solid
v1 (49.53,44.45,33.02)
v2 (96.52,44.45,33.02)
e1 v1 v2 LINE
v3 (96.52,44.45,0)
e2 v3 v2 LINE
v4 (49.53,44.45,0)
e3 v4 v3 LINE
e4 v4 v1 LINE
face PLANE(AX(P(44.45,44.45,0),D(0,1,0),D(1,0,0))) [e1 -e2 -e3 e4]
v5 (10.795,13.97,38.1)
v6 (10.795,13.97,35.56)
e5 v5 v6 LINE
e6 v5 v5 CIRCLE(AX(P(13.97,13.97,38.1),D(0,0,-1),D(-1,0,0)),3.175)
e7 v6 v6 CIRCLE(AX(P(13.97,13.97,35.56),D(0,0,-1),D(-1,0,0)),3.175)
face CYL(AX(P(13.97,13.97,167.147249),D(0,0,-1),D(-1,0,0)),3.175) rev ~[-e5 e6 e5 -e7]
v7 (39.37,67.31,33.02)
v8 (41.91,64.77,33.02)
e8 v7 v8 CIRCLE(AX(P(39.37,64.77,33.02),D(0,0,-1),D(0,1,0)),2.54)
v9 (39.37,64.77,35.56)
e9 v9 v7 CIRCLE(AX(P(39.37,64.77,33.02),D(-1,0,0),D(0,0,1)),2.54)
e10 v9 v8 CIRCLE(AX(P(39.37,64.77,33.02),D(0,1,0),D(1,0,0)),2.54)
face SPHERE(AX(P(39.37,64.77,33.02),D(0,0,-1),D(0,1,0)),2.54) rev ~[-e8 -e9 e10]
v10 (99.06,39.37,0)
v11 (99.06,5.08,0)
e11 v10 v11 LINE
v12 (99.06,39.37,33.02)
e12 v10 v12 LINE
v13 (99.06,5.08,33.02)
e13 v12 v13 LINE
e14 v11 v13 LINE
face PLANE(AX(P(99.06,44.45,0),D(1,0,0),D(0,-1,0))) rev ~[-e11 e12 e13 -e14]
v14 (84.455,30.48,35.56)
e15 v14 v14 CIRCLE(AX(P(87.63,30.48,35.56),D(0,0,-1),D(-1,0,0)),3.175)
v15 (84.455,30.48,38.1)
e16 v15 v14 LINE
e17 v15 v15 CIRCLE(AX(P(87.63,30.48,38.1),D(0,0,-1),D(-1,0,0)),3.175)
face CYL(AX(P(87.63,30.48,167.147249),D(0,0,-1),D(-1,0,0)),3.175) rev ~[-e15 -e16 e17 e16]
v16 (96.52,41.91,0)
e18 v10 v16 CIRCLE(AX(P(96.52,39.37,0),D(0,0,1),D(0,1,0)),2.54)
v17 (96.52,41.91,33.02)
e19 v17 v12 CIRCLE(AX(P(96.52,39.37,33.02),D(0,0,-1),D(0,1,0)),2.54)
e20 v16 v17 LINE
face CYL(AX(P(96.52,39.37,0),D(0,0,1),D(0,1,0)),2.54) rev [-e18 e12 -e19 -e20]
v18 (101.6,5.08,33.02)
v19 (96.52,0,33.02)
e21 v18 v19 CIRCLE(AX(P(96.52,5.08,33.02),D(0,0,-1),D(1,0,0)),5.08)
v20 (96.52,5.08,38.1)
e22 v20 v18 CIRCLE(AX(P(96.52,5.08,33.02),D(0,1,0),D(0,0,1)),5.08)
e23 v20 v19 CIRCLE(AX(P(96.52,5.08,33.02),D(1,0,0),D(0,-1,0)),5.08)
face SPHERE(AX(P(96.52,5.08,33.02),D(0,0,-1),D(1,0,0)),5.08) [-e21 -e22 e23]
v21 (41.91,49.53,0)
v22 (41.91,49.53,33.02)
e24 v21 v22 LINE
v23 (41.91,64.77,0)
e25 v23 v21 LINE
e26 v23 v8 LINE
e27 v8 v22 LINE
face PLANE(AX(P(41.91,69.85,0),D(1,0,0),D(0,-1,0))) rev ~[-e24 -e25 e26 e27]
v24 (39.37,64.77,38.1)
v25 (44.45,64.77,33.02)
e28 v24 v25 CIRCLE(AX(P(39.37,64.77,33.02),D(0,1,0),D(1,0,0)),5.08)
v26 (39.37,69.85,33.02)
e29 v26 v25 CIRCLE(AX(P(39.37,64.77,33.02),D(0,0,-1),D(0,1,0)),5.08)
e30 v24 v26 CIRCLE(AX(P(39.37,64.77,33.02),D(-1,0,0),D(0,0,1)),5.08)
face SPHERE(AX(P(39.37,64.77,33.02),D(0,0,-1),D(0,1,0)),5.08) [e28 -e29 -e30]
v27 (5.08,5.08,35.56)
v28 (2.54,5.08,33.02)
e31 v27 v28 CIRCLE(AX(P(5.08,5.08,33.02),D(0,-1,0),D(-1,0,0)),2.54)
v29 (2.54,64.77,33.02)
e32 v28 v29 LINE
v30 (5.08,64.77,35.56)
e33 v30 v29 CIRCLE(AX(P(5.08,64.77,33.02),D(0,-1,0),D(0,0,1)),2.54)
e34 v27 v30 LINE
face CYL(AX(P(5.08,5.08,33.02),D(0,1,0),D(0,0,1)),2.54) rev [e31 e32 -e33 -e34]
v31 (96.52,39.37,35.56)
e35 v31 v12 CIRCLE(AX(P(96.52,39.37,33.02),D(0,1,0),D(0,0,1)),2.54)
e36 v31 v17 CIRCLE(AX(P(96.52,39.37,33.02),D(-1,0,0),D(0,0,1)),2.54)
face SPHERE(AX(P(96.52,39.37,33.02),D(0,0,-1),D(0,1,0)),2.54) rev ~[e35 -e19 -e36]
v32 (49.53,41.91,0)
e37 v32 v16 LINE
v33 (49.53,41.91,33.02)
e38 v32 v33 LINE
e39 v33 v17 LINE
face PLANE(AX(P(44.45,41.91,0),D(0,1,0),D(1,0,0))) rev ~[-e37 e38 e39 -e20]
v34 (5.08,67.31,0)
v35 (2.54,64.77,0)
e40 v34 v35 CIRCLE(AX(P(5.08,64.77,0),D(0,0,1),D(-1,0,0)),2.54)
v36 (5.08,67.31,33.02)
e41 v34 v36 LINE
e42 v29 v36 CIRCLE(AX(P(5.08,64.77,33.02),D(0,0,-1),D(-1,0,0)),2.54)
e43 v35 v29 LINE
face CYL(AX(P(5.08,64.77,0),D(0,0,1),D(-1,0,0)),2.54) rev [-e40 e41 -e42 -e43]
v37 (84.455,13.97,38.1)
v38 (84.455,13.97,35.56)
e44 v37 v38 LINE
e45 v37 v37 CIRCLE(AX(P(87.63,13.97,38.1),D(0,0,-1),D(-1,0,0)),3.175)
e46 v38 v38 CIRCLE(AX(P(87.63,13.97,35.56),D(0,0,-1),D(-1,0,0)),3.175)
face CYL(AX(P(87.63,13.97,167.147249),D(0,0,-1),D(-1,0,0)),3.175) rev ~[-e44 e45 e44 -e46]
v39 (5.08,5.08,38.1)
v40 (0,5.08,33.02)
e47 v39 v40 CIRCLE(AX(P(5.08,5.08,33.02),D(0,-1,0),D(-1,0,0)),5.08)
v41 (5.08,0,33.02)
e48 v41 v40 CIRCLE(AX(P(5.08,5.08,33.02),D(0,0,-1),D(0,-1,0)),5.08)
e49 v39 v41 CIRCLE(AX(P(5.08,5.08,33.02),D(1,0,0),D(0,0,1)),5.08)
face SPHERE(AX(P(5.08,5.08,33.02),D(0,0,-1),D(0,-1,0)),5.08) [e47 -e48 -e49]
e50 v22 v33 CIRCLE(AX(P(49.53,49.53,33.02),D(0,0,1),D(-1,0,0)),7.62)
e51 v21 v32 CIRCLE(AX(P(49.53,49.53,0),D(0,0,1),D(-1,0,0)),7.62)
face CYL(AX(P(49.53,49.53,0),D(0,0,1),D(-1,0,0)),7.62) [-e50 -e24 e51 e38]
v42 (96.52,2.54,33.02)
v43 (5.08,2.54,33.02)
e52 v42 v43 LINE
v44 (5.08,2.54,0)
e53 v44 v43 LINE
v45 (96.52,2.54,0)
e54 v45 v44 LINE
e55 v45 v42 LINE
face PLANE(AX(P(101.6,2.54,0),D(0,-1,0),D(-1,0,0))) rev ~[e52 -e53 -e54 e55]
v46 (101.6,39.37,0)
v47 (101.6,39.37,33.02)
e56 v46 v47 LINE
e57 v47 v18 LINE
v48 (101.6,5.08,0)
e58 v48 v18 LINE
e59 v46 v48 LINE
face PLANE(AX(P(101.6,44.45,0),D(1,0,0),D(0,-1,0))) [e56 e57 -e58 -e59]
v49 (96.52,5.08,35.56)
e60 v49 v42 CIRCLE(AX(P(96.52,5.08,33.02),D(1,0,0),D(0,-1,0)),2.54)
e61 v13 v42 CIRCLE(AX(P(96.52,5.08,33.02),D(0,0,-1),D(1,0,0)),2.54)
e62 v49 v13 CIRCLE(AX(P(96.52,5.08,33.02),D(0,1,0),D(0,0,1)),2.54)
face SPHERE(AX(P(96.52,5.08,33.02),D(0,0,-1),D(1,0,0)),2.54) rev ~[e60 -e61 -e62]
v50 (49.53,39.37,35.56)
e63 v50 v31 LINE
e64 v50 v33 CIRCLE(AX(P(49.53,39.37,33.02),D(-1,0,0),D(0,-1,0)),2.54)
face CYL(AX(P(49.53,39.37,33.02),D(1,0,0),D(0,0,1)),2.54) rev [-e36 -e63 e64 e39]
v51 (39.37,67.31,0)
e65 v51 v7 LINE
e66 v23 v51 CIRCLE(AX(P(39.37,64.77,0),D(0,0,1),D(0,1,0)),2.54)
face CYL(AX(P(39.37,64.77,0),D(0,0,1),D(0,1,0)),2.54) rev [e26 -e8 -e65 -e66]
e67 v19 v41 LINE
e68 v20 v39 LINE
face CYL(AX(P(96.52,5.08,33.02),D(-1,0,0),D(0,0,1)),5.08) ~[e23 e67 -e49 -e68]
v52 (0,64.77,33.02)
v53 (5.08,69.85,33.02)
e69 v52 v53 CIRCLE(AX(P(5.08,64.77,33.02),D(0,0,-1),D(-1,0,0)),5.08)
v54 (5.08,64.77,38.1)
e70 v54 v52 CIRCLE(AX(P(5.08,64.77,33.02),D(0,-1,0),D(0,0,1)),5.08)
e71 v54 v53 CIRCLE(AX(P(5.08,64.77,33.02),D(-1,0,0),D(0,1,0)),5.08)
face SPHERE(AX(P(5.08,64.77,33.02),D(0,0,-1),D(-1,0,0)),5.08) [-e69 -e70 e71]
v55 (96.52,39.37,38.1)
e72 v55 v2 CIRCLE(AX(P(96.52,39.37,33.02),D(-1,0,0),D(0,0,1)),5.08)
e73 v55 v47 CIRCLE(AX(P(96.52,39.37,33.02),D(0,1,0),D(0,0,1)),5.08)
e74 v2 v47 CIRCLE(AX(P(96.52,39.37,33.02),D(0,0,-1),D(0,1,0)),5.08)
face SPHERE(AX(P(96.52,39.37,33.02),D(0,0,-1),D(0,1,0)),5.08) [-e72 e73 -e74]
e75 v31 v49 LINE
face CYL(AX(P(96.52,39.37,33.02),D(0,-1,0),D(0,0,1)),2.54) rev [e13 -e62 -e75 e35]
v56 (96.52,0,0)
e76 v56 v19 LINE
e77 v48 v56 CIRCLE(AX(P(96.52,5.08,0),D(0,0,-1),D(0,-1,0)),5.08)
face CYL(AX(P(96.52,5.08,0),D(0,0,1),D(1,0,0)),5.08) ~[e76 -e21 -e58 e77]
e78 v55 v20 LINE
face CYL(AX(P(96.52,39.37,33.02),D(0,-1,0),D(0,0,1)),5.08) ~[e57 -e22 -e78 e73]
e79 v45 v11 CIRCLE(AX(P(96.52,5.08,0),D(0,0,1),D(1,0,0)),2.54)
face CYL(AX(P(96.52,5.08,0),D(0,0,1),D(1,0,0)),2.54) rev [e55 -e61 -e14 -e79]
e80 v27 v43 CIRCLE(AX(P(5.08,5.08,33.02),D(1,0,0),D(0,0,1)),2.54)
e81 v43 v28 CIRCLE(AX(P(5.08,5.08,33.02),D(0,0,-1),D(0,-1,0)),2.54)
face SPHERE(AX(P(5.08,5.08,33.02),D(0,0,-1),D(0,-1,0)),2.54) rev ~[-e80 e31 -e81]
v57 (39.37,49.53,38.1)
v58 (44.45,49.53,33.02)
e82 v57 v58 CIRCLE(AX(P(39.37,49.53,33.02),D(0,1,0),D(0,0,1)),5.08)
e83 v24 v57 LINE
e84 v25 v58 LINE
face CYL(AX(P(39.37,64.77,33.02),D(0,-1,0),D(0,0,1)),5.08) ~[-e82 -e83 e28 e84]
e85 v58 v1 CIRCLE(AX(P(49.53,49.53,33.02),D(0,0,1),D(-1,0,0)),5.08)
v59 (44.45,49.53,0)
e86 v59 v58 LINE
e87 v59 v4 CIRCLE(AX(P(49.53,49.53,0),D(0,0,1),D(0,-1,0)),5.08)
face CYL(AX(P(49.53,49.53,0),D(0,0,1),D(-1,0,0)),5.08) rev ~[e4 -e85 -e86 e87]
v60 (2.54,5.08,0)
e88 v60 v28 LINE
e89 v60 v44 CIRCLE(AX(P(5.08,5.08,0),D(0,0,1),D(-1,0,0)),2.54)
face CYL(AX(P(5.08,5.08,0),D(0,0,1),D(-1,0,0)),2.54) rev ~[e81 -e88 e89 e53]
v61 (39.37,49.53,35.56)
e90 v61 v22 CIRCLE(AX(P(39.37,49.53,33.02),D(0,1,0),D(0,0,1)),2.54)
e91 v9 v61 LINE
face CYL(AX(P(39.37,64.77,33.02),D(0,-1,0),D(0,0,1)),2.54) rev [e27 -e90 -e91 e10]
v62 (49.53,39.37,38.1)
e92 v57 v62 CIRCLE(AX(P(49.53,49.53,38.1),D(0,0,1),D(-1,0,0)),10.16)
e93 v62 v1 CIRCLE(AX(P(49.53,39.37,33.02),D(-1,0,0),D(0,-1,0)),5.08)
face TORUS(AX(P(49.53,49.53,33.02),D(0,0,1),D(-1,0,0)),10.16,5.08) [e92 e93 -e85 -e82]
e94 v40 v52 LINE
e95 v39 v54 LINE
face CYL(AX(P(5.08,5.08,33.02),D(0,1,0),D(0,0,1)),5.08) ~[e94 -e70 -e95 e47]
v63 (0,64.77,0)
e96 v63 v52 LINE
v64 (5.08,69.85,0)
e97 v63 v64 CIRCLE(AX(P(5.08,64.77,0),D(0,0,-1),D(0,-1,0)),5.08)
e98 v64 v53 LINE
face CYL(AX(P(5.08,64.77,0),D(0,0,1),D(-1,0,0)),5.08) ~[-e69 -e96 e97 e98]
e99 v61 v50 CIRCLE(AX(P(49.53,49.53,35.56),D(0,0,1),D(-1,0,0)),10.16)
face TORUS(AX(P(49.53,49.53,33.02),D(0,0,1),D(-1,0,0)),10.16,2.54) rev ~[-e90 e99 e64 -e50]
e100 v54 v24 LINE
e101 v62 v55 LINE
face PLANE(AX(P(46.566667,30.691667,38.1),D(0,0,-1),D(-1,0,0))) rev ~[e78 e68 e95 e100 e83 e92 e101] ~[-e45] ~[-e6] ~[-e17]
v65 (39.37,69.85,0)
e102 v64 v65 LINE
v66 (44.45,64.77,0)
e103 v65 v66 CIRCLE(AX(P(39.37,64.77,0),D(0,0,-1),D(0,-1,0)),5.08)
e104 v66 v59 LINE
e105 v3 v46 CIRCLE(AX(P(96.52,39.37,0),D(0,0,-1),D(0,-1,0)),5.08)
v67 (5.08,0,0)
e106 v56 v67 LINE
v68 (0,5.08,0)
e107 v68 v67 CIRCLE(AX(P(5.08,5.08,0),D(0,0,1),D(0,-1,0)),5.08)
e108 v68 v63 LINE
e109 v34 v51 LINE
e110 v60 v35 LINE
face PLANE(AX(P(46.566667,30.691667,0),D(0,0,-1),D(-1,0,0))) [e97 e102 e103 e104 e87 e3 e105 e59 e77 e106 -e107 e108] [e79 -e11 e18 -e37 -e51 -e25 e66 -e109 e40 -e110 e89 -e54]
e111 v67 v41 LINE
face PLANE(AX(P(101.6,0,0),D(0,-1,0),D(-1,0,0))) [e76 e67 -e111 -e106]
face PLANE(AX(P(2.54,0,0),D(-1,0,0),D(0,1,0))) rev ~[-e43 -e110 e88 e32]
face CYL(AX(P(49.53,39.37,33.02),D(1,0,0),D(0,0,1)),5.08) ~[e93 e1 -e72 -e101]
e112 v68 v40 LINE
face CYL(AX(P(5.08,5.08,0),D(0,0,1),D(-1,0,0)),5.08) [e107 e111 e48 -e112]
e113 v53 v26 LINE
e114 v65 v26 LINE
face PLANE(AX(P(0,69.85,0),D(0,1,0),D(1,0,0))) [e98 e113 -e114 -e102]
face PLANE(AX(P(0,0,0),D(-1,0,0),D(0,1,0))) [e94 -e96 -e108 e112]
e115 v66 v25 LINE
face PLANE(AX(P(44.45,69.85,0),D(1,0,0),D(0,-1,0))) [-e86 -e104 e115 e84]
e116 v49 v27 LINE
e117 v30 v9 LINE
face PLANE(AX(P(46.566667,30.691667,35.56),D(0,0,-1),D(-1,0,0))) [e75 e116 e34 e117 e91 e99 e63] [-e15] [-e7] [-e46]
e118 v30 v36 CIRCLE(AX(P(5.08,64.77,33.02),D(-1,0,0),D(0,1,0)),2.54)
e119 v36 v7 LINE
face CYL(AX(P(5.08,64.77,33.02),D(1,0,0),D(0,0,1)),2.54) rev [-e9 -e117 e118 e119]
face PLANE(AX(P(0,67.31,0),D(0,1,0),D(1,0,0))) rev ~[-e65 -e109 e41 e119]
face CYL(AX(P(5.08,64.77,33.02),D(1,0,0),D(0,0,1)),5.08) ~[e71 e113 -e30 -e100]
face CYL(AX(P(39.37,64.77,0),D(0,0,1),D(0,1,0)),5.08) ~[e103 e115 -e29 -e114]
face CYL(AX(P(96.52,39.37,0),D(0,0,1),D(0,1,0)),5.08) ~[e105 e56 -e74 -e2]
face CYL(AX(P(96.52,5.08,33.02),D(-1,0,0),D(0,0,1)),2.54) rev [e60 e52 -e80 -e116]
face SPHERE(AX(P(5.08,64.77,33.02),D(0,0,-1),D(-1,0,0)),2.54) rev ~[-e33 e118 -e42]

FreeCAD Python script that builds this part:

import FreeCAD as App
import Part
import Sketcher

V = App.Vector
Q = App.Units.Quantity


def edges_at(feature, points):
    """Names of the edges that pass closest to the given points."""
    edges = feature.Shape.Edges
    near = lambda p: min(range(len(edges)), key=lambda i: edges[i].distToShape(Part.Vertex(*p))[0])
    return sorted({f"Edge{near(p) + 1}" for p in points})


def faces_at(feature, points):
    """Names of the faces that lie closest to the given points."""
    faces = feature.Shape.Faces
    near = lambda p: min(range(len(faces)), key=lambda i: faces[i].distToShape(Part.Vertex(*p))[0])
    return sorted({f"Face{near(p) + 1}" for p in points})

doc = App.newDocument("Part")
body = doc.addObject("PartDesign::Body", "Body")

# Sketch on XY plane
sketch1 = body.newObject("Sketcher::SketchObject", "Sketch")
sketch1.AttachmentSupport = (doc.getObject("XY_Plane"), [""])
sketch1.MapMode = "FlatFace"
sketch1.addGeometry([
    Part.LineSegment(V(0, 70, 0), V(0, 0, 0)),  # 0
    Part.LineSegment(V(0, 0, 0), V(102, 0, 0)),  # 1
    Part.LineSegment(V(102, 0, 0), V(102, 44, 0)),  # 2
    Part.LineSegment(V(102, 44, 0), V(44, 44, 0)),  # 3
    Part.LineSegment(V(44, 44, 0), V(44, 70, 0)),  # 4
    Part.LineSegment(V(44, 70, 0), V(0, 70, 0)),  # 5
], False)
sketch1.addConstraint([
    Sketcher.Constraint("Coincident", 0, 2, 1, 1),
    Sketcher.Constraint("Coincident", 1, 2, 2, 1),
    Sketcher.Constraint("Coincident", 2, 2, 3, 1),
    Sketcher.Constraint("Coincident", 3, 2, 4, 1),
    Sketcher.Constraint("Coincident", 4, 2, 5, 1),
    Sketcher.Constraint("Coincident", 5, 2, 0, 1),
    Sketcher.Constraint("Vertical", 0),
    Sketcher.Constraint("Horizontal", 1),
    Sketcher.Constraint("Vertical", 2),
    Sketcher.Constraint("Horizontal", 3),
    Sketcher.Constraint("Vertical", 4),
    Sketcher.Constraint("Horizontal", 5),
    Sketcher.Constraint("Coincident", 0, 2, -1, 1),
    Sketcher.Constraint("Equal", 5, 2),
    Sketcher.Constraint("DistanceX", 1, 1, 1, 2, Q("4 in")),
    Sketcher.Constraint("DistanceY", 4, 1, 4, 2, Q("1 in")),
    Sketcher.Constraint("DistanceX", 3, 2, 3, 1, Q("2.25 in")),
])
pad1 = body.newObject("PartDesign::Pad", "Pad")
pad1.Profile = sketch1
pad1.Length = Q("1.5 in")
doc.recompute()

fillet = body.newObject("PartDesign::Fillet", "Fillet")
fillet.Base = (pad1, edges_at(pad1, [
    (0, 0, 19.05),
    (0, 69.85, 19.05),
    (44.45, 69.85, 19.05),
    (44.45, 44.45, 19.05),
    (101.6, 44.45, 19.05),
    (101.6, 0, 19.05),
]))
fillet.Radius = Q("0.2 in")
doc.recompute()

fillet2 = body.newObject("PartDesign::Fillet", "Fillet001")
fillet2.Base = (fillet, edges_at(fillet, [
    (101.6, 22.225, 38.1),
    (50.8, 0, 38.1),
    (73.025, 44.45, 38.1),
    (44.45, 57.15, 38.1),
    (22.225, 69.85, 38.1),
    (0, 34.925, 38.1),
    (42.962, 68.362, 38.1),
    (1.488, 68.362, 38.1),
    (1.488, 1.488, 38.1),
    (100.112, 42.962, 38.1),
    (100.112, 1.488, 38.1),
    (45.938, 45.938, 38.1),
]))
fillet2.Radius = Q("0.2 in")
doc.recompute()

thickness = body.newObject("PartDesign::Thickness", "Thickness")
thickness.Base = (fillet2, faces_at(fillet2, [(50.8, 34.925, 0)]))
thickness.Value = Q("0.1 in")
thickness.Reversed = True
thickness.Join = "Intersection"

# Sketch on XY plane
sketch2 = body.newObject("Sketcher::SketchObject", "Sketch001")
sketch2.AttachmentSupport = (doc.getObject("XY_Plane"), [""])
sketch2.MapMode = "FlatFace"
sketch2.AttachmentOffset = App.Placement(V(0, 0, 1.5 * 25.4), App.Rotation())
sketch2.addGeometry(Part.Circle(V(87.6, 30.5, 0), V(0, 0, 1), 3.2), False)
sketch2.addConstraint([
    Sketcher.Constraint("Diameter", 0, Q("0.25 in")),
    Sketcher.Constraint("DistanceY", -1, 1, 0, 3, Q("1.2 in")),
    Sketcher.Constraint("DistanceX", -1, 1, 0, 3, Q("3.45 in")),
])
doc.recompute()
hole = body.newObject("PartDesign::Hole", "Hole")
hole.Profile = sketch2
hole.ThreadType = "None"
hole.Diameter = Q("0.25 in")
hole.DepthType = "ThroughAll"

# Sketch on XY plane
sketch3 = body.newObject("Sketcher::SketchObject", "Sketch002")
sketch3.AttachmentSupport = (doc.getObject("XY_Plane"), [""])
sketch3.MapMode = "FlatFace"
sketch3.AttachmentOffset = App.Placement(V(0, 0, 1.5 * 25.4), App.Rotation())
sketch3.addGeometry([
    Part.Circle(V(87.6, 14, 0), V(0, 0, 1), 3.2),
    Part.Circle(V(14, 14, 0), V(0, 0, 1), 3.2),
], False)
sketch3.addConstraint([
    Sketcher.Constraint("Equal", 0, 1),
    Sketcher.Constraint("Horizontal", 0, 3, 1, 3),
    Sketcher.Constraint("Diameter", 0, Q("0.25 in")),
    Sketcher.Constraint("DistanceX", 1, 3, 0, 3, Q("2.9 in")),
    Sketcher.Constraint("DistanceX", -1, 1, 0, 3, Q("3.45 in")),
    Sketcher.Constraint("DistanceY", -1, 1, 0, 3, Q("0.55 in")),
])
doc.recompute()
hole2 = body.newObject("PartDesign::Hole", "Hole001")
hole2.Profile = sketch3
hole2.ThreadType = "None"
hole2.Diameter = Q("0.25 in")
hole2.DepthType = "ThroughAll"

doc.recompute()
